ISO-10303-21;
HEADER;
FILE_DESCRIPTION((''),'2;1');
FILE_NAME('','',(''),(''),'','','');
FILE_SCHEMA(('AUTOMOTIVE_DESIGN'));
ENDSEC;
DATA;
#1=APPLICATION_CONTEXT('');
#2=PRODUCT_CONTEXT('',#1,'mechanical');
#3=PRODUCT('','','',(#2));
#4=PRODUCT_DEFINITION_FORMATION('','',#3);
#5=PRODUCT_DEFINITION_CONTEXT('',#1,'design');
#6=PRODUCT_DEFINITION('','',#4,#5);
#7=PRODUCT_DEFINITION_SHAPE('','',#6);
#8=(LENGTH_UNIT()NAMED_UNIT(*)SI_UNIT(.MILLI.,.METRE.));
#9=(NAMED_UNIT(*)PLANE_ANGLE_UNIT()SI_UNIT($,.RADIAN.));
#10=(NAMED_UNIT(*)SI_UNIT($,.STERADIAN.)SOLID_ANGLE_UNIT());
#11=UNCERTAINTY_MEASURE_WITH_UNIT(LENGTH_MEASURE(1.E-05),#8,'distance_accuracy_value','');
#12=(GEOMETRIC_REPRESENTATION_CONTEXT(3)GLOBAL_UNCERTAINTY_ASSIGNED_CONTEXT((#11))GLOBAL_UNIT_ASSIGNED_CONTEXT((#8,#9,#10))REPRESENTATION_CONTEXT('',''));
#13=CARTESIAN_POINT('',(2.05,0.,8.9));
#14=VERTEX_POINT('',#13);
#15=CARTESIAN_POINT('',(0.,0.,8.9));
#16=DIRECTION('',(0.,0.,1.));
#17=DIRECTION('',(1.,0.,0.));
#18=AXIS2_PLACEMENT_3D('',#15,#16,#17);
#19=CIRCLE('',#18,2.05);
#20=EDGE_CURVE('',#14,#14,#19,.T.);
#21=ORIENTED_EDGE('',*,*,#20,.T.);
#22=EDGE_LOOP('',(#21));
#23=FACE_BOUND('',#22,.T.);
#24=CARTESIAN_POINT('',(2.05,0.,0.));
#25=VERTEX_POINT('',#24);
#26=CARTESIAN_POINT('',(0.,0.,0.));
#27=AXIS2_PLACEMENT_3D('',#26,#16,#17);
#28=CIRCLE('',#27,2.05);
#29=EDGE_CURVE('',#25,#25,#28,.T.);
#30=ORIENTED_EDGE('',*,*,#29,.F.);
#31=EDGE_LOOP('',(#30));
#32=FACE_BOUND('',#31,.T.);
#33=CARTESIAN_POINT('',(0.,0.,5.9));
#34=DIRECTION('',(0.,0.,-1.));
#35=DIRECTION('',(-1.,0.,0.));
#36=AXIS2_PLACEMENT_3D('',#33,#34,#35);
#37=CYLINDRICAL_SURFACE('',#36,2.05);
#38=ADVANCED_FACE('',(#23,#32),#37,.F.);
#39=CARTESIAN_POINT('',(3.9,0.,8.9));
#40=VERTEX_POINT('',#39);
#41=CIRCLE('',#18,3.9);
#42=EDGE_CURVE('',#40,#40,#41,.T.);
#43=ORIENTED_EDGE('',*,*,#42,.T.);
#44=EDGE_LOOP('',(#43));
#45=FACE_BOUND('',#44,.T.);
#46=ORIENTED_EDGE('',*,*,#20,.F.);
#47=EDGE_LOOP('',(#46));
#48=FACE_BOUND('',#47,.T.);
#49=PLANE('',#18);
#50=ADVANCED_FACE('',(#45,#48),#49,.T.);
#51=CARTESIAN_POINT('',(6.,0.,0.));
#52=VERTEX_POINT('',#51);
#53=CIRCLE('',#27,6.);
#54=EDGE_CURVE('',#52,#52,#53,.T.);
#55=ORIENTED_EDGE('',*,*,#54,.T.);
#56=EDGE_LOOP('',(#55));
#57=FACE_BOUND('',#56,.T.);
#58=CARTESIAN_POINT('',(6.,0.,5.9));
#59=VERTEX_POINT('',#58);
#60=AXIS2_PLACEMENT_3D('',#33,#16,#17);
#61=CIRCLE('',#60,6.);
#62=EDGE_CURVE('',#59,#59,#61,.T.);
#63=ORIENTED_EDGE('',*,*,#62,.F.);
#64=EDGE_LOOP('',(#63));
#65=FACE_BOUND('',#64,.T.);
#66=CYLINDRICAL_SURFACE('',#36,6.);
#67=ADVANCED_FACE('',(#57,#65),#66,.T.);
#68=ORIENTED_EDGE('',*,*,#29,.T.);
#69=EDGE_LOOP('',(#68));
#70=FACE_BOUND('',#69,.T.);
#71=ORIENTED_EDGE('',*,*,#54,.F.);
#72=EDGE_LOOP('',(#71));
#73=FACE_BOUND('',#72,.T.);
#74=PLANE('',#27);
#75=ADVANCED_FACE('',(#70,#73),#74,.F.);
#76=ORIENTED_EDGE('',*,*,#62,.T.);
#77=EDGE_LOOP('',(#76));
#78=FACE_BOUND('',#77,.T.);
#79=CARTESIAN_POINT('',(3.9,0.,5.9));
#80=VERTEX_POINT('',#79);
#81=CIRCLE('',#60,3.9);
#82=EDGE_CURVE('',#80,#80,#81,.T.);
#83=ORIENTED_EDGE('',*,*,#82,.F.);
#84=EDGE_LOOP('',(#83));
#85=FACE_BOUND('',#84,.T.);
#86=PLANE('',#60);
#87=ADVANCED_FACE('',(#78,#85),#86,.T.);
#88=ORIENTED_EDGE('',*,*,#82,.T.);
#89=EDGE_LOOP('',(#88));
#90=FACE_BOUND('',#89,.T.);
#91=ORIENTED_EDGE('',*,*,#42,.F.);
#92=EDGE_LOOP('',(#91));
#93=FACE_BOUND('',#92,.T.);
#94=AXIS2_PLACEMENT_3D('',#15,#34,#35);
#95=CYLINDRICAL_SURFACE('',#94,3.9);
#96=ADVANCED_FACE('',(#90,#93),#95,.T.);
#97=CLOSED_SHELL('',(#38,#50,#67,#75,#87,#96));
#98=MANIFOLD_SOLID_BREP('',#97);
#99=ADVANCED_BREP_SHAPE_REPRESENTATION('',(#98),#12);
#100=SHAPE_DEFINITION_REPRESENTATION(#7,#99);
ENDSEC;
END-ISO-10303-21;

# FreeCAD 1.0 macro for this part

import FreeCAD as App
import Part
import Sketcher

V = App.Vector
Q = App.Units.Quantity

doc = App.newDocument("Part")
body = doc.addObject("PartDesign::Body", "Body")

sketch1 = body.newObject("Sketcher::SketchObject", "Sketch")
sketch1.AttachmentSupport = (doc.getObject("XY_Plane"), [""])
sketch1.MapMode = "FlatFace"
sketch1.addGeometry([
    Part.Circle(V(0, 0, 0), V(0, 0, 1), 6),
    Part.Circle(V(0, 0, 0), V(0, 0, 1), 2),
], False)
sketch1.addConstraint([
    Sketcher.Constraint("Coincident", 0, 3, -1, 1),
    Sketcher.Constraint("Coincident", 1, 3, -1, 1),
    Sketcher.Constraint("Diameter", 0, Q("12 mm")),
    Sketcher.Constraint("Diameter", 1, Q("4.1 mm")),
])
pad1 = body.newObject("PartDesign::Pad", "Pad")
pad1.Profile = sketch1
pad1.Length = 5.9

sketch2 = body.newObject("Sketcher::SketchObject", "Sketch001")
sketch2.AttachmentSupport = (doc.getObject("XY_Plane"), [""])
sketch2.MapMode = "FlatFace"
sketch2.AttachmentOffset = App.Placement(V(0, 0, 5.9), App.Rotation())
sketch2.addGeometry([
    Part.Circle(V(0, 0, 0), V(0, 0, 1), 3.9),
    Part.Circle(V(0, 0, 0), V(0, 0, 1), 2),
], False)
sketch2.addConstraint([
    Sketcher.Constraint("Coincident", 0, 3, -1, 1),
    Sketcher.Constraint("Coincident", 1, 3, -1, 1),
    Sketcher.Constraint("Diameter", 0, Q("7.8 mm")),
    Sketcher.Constraint("Diameter", 1, Q("4.1 mm")),
])
pad2 = body.newObject("PartDesign::Pad", "Pad001")
pad2.Profile = sketch2
pad2.Length = 3

doc.recompute()
